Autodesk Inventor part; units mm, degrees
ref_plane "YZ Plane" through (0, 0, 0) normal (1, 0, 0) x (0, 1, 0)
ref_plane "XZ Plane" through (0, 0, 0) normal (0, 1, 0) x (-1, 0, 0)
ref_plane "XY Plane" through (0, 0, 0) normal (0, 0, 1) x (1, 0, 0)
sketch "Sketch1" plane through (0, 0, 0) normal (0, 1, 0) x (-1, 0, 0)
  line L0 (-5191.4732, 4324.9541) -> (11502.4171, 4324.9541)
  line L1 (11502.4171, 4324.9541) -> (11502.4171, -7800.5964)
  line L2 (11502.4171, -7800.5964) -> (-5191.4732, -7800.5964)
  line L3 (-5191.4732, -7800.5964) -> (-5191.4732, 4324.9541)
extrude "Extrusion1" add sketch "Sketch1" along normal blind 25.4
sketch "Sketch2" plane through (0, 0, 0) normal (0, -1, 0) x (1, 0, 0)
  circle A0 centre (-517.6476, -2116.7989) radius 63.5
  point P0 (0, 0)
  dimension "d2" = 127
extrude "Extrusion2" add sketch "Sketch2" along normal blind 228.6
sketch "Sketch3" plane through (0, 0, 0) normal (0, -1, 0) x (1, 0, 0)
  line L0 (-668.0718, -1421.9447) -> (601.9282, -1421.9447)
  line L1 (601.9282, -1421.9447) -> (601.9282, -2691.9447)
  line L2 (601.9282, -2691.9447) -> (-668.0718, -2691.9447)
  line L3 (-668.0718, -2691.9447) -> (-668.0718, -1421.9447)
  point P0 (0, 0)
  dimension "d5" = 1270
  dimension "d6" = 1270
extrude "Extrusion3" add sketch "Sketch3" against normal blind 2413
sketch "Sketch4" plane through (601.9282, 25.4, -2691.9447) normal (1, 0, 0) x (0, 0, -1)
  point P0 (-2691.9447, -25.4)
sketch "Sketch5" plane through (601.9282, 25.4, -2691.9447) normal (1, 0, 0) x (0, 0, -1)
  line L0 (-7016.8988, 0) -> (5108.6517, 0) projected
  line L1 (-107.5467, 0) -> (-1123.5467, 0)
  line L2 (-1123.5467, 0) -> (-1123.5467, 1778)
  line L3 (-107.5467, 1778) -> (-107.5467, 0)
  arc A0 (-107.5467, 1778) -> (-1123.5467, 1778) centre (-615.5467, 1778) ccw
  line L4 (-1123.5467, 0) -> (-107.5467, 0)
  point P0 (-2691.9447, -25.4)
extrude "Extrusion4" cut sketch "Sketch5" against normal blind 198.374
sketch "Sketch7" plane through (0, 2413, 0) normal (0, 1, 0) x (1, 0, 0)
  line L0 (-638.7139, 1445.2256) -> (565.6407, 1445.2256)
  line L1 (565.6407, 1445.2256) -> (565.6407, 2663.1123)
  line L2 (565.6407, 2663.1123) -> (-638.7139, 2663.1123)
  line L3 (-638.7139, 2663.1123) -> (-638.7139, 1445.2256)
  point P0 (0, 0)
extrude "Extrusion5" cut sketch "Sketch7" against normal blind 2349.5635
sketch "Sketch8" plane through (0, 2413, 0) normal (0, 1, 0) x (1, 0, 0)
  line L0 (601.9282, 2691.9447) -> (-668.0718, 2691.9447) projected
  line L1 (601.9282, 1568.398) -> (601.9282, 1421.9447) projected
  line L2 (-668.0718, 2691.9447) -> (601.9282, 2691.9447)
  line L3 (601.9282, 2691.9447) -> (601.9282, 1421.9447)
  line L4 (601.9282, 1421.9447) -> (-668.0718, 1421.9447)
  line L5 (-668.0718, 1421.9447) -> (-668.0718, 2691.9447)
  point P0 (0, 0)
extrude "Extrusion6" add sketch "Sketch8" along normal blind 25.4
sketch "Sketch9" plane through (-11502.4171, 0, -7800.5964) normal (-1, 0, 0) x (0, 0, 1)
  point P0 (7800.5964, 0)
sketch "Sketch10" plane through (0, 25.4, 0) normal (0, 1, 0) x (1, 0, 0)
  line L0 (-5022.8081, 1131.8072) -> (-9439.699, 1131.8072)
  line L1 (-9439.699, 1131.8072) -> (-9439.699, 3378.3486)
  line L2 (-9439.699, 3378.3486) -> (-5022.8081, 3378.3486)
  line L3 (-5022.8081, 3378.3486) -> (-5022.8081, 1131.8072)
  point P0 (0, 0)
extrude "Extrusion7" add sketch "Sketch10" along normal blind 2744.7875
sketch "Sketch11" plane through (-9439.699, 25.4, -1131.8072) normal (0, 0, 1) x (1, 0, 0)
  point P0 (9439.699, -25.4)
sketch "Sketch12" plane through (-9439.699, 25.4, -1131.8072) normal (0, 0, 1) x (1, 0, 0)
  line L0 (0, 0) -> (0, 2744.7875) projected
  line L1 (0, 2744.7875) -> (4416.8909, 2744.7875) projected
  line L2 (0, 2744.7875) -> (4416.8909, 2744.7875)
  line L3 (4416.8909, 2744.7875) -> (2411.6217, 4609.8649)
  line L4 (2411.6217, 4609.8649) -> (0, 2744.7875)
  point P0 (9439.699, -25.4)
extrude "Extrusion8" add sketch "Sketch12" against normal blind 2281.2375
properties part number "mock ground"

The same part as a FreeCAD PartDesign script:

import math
import FreeCAD as App
import Part
import Sketcher
Q = App.Units.Quantity


def add_polygon(sketch, points):
    """Adds a closed chain of lines whose ends are joined by coincident constraints."""
    first, n = sketch.GeometryCount, len(points)
    for a, b in zip(points, points[1:] + points[:1]):
        sketch.addGeometry(Part.LineSegment(App.Vector(*a, 0), App.Vector(*b, 0)), False)
    for i in range(n):
        sketch.addConstraint(Sketcher.Constraint("Coincident", first + i, 2, first + (i + 1) % n, 1))

doc = App.newDocument("Part")
params = doc.addObject("Spreadsheet::Sheet", "Params")
for row, (alias, value) in enumerate([
    ("pad1_length", "1 in"),
    ("sketch2_diameter", "5 in"),
    ("pad2_length", "9 in"),
    ("sketch3_width", "50 in"),
    ("pad3_length", "95 in"),
    ("sketch4_radius", "20 in"),
    ("sketch4_width", "70 in"),
    ("pocket1_length", "7.81 in"),
    ("pocket2_length", "92.5025 in"),
    ("sketch6_width", "50 in"),
    ("pad4_length", "1 in"),
    ("pad5_length", "108.0625 in"),
    ("pad6_length", "89.8125 in"),
], start=1):
    params.set(f"A{row}", alias)
    params.set(f"B{row}", "=" + value)
    params.setAlias(f"B{row}", alias)

body = doc.addObject("PartDesign::Body", "Body")

sketch1 = body.newObject("Sketcher::SketchObject", "Sketch")
sketch1.AttachmentSupport = (doc.getObject("XZ_Plane"), [""])
sketch1.MapMode = "FlatFace"
add_polygon(sketch1, [(-11502, 4325), (5191, 4325), (5191, -7801), (-11502, -7801)])
sketch1.addConstraint([
    Sketcher.Constraint("Horizontal", 0),
    Sketcher.Constraint("Vertical", 1),
    Sketcher.Constraint("Horizontal", 2),
    Sketcher.Constraint("Vertical", 3),
    Sketcher.Constraint("DistanceX", 0, 1, 0, 2, Q("16693.8903 mm")),
    Sketcher.Constraint("DistanceY", 1, 2, 1, 1, Q("12125.5505 mm")),
    Sketcher.Constraint("DistanceX", -1, 1, 0, 2, Q("204.3887 in")),
    Sketcher.Constraint("DistanceY", 1, 2, -1, 1, Q("307.1101 in")),
])
pad1 = body.newObject("PartDesign::Pad", "Pad")
pad1.Profile = sketch1
pad1.setExpression("Length", "Params.pad1_length")
pad1.Reversed = True

sketch2 = body.newObject("Sketcher::SketchObject", "Sketch001")
sketch2.AttachmentSupport = (doc.getObject("XZ_Plane"), [""])
sketch2.MapMode = "FlatFace"
sketch2.addGeometry(Part.Circle(App.Vector(-518, -2117, 0), App.Vector(0, 0, 1), 64), False)
sketch2.addConstraint([
    Sketcher.Constraint("Diameter", 0, Q("5 in")),
    Sketcher.Constraint("DistanceX", 0, 3, -1, 1, Q("517.6476 mm")),
    Sketcher.Constraint("DistanceY", 0, 3, -1, 1, Q("2116.799 mm")),
])
sketch2.setExpression("Constraints[0]", "Params.sketch2_diameter")
pad2 = body.newObject("PartDesign::Pad", "Pad001")
pad2.Profile = sketch2
pad2.setExpression("Length", "Params.pad2_length")

sketch3 = body.newObject("Sketcher::SketchObject", "Sketch002")
sketch3.AttachmentSupport = (doc.getObject("XZ_Plane"), [""])
sketch3.MapMode = "FlatFace"
add_polygon(sketch3, [(602, -1422), (-668, -1422), (-668, -2692), (602, -2692)])
sketch3.addConstraint([
    Sketcher.Constraint("Horizontal", 0),
    Sketcher.Constraint("Vertical", 1),
    Sketcher.Constraint("Horizontal", 2),
    Sketcher.Constraint("Vertical", 3),
    Sketcher.Constraint("Equal", 2, 1),
    Sketcher.Constraint("DistanceX", 0, 2, 0, 1, Q("50 in")),
    Sketcher.Constraint("DistanceX", 0, 2, -1, 1, Q("668.0718 mm")),
    Sketcher.Constraint("DistanceY", 0, 2, -1, 1, Q("1421.9447 mm")),
])
sketch3.setExpression("Constraints[9]", "Params.sketch3_width")
pad3 = body.newObject("PartDesign::Pad", "Pad002")
pad3.Profile = sketch3
pad3.setExpression("Length", "Params.pad3_length")
pad3.Reversed = True

sketch4 = body.newObject("Sketcher::SketchObject", "Sketch003")
sketch4.AttachmentSupport = (doc.getObject("YZ_Plane"), [""])
sketch4.MapMode = "FlatFace"
sketch4.AttachmentOffset = App.Placement(App.Vector(0, 0, 601.9282), App.Rotation())
sketch4.addGeometry([
    Part.LineSegment(App.Vector(1803, -1568, 0), App.Vector(25, -1568, 0)),
    Part.LineSegment(App.Vector(25, -1568, 0), App.Vector(25, -2584, 0)),
    Part.LineSegment(App.Vector(25, -2584, 0), App.Vector(1803, -2584, 0)),
    Part.ArcOfCircle(Part.Circle(App.Vector(1803, -2076, 0), App.Vector(0, 0, 1), 508), math.radians(-90), math.radians(90)),
], False)
sketch4.addConstraint([
    Sketcher.Constraint("Coincident", 0, 2, 1, 1),
    Sketcher.Constraint("Coincident", 1, 2, 2, 1),
    Sketcher.Constraint("Tangent", 2, 2, 3, 1),
    Sketcher.Constraint("Tangent", 3, 2, 0, 1),
    Sketcher.Constraint("Horizontal", 0),
    Sketcher.Constraint("Vertical", 1),
    Sketcher.Constraint("Horizontal", 2),
    Sketcher.Constraint("Radius", 3, Q("20 in")),
    Sketcher.Constraint("DistanceX", 0, 2, 0, 1, Q("70 in")),
    Sketcher.Constraint("DistanceX", -1, 1, 3, 3, Q("71 in")),
    Sketcher.Constraint("DistanceY", 3, 3, -1, 1, Q("2076.398 mm")),
])
sketch4.setExpression("Constraints[7]", "Params.sketch4_radius")
sketch4.setExpression("Constraints[8]", "Params.sketch4_width")
pocket1 = body.newObject("PartDesign::Pocket", "Pocket")
pocket1.Profile = sketch4
pocket1.setExpression("Length", "Params.pocket1_length")

sketch5 = body.newObject("Sketcher::SketchObject", "Sketch004")
sketch5.AttachmentSupport = (doc.getObject("XZ_Plane"), [""])
sketch5.MapMode = "FlatFace"
sketch5.AttachmentOffset = App.Placement(App.Vector(0, 0, -95 * 25.4), App.Rotation())
add_polygon(sketch5, [(-639, -2663), (-639, -1445), (566, -1445), (566, -2663)])
sketch5.addConstraint([
    Sketcher.Constraint("Vertical", 0),
    Sketcher.Constraint("Horizontal", 1),
    Sketcher.Constraint("Vertical", 2),
    Sketcher.Constraint("Horizontal", 3),
    Sketcher.Constraint("DistanceY", 0, 1, 0, 2, Q("47.9483 in")),
    Sketcher.Constraint("DistanceX", 1, 1, 1, 2, Q("1204.3546 mm")),
    Sketcher.Constraint("DistanceX", 0, 2, -1, 1, Q("638.714 mm")),
    Sketcher.Constraint("DistanceY", 0, 2, -1, 1, Q("1445.2256 mm")),
])
pocket2 = body.newObject("PartDesign::Pocket", "Pocket001")
pocket2.Profile = sketch5
pocket2.setExpression("Length", "Params.pocket2_length")
pocket2.Reversed = True

sketch6 = body.newObject("Sketcher::SketchObject", "Sketch005")
sketch6.AttachmentSupport = (doc.getObject("XZ_Plane"), [""])
sketch6.MapMode = "FlatFace"
sketch6.AttachmentOffset = App.Placement(App.Vector(0, 0, -95 * 25.4), App.Rotation())
add_polygon(sketch6, [(602, -1422), (602, -2692), (-668, -2692), (-668, -1422)])
sketch6.addConstraint([
    Sketcher.Constraint("Vertical", 0),
    Sketcher.Constraint("Horizontal", 1),
    Sketcher.Constraint("Vertical", 2),
    Sketcher.Constraint("Horizontal", 3),
    Sketcher.Constraint("Equal", 3, 0),
    Sketcher.Constraint("DistanceX", 1, 2, 1, 1, Q("50 in")),
    Sketcher.Constraint("DistanceX", -1, 1, 0, 2, Q("601.9282 mm")),
    Sketcher.Constraint("DistanceY", 0, 2, -1, 1, Q("2691.9447 mm")),
])
sketch6.setExpression("Constraints[9]", "Params.sketch6_width")
pad4 = body.newObject("PartDesign::Pad", "Pad003")
pad4.Profile = sketch6
pad4.setExpression("Length", "Params.pad4_length")
pad4.Reversed = True

sketch7 = body.newObject("Sketcher::SketchObject", "Sketch006")
sketch7.AttachmentSupport = (doc.getObject("XZ_Plane"), [""])
sketch7.MapMode = "FlatFace"
sketch7.AttachmentOffset = App.Placement(App.Vector(0, 0, -1 * 25.4), App.Rotation())
add_polygon(sketch7, [(-9440, -1132), (-5023, -1132), (-5023, -3378), (-9440, -3378)])
sketch7.addConstraint([
    Sketcher.Constraint("Horizontal", 0),
    Sketcher.Constraint("Vertical", 1),
    Sketcher.Constraint("Horizontal", 2),
    Sketcher.Constraint("Vertical", 3),
    Sketcher.Constraint("DistanceY", 1, 2, 1, 1, Q("88.4465 in")),
    Sketcher.Constraint("DistanceX", 0, 1, 0, 2, Q("4416.891 mm")),
    Sketcher.Constraint("DistanceX", 2, 2, -1, 1, Q("371.6417 in")),
    Sketcher.Constraint("DistanceY", 0, 2, -1, 1, Q("1131.8072 mm")),
])
pad5 = body.newObject("PartDesign::Pad", "Pad004")
pad5.Profile = sketch7
pad5.setExpression("Length", "Params.pad5_length")
pad5.Reversed = True

sketch8 = body.newObject("Sketcher::SketchObject", "Sketch007")
sketch8.AttachmentSupport = (doc.getObject("XY_Plane"), [""])
sketch8.MapMode = "FlatFace"
sketch8.AttachmentOffset = App.Placement(App.Vector(0, 0, -1131.8072), App.Rotation())
add_polygon(sketch8, [(-7028, 4635), (-9440, 2770), (-5023, 2770)])
sketch8.addConstraint([
    Sketcher.Constraint("Horizontal", 1),
    Sketcher.Constraint("DistanceY", -1, 1, 0, 2, Q("109.0625 in")),
    Sketcher.Constraint("DistanceX", 1, 1, 1, 2, Q("4416.891 mm")),
    Sketcher.Constraint("DistanceX", 0, 2, -1, 1, Q("371.6417 in")),
    Sketcher.Constraint("DistanceX", 2, 2, 1, 2, Q("78.9476 in")),
    Sketcher.Constraint("Distance", 0, Q("3048.6772 mm")),
])
pad6 = body.newObject("PartDesign::Pad", "Pad005")
pad6.Profile = sketch8
pad6.setExpression("Length", "Params.pad6_length")
pad6.Reversed = True

doc.recompute()
